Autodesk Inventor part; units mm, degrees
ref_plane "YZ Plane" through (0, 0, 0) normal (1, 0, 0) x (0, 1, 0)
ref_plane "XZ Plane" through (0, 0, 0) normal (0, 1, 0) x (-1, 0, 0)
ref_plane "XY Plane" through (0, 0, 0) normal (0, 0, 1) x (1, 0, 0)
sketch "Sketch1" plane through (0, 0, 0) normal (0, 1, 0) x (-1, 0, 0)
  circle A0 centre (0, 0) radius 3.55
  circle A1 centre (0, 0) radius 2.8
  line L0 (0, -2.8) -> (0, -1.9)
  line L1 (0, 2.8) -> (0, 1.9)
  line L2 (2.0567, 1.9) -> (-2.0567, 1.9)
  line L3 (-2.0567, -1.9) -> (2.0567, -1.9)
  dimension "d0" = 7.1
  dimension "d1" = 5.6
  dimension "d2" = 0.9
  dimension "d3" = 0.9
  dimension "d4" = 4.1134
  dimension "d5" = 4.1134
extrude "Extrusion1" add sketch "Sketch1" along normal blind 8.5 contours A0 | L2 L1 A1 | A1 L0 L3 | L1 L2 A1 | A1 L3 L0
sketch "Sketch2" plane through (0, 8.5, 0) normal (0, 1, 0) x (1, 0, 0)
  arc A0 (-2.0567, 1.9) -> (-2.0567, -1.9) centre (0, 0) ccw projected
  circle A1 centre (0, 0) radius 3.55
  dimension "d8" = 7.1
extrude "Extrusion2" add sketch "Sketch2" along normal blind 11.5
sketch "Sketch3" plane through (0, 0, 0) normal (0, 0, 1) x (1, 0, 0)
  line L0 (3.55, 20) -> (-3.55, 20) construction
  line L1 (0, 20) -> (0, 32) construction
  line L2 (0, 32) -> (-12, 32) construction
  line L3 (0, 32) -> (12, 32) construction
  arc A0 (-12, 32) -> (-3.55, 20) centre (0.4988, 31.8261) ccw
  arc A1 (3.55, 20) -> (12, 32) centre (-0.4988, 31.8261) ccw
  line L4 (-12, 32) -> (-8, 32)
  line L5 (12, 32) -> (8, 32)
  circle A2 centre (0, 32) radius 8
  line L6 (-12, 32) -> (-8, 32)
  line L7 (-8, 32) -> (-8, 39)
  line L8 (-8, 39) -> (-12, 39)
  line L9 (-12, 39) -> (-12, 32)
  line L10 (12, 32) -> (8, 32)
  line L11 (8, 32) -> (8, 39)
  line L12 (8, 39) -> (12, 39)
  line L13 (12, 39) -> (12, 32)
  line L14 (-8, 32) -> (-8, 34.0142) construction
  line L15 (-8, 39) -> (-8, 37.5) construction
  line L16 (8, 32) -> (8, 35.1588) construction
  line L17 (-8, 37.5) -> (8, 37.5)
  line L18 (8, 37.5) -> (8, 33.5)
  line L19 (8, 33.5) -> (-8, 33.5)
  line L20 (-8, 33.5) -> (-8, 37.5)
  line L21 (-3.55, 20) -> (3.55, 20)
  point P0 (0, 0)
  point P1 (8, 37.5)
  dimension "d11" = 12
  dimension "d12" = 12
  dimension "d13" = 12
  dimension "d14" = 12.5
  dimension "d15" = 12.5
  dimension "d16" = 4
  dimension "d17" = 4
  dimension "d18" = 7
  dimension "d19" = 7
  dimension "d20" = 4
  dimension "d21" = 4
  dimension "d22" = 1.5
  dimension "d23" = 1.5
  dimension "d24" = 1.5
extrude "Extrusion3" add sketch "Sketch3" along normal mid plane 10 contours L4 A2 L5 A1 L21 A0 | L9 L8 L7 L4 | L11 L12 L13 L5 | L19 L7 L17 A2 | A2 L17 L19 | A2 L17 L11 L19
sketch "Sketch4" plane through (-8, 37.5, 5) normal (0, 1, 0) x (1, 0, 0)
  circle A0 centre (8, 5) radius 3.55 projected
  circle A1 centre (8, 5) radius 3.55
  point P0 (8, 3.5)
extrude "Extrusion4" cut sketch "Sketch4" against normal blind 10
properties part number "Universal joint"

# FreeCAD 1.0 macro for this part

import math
import FreeCAD as App
import Part
import Sketcher
Q = App.Units.Quantity

doc = App.newDocument("Part")
body = doc.addObject("PartDesign::Body", "Body")

# Sketch on XZ plane
sketch1 = doc.addObject("Sketcher::SketchObject", "Sketch")
body.addObject(sketch1)
sketch1.AttachmentSupport = (doc.XZ_Plane, [""])
sketch1.MapMode = "FlatFace"
sketch1.addGeometry([
    Part.Circle(App.Vector(0, 0, 0), App.Vector(0, 0, 1), 3.5),  # 0
    Part.ArcOfCircle(Part.Circle(App.Vector(0, 0, 0), App.Vector(0, 0, 1), 2.8), math.radians(137), math.radians(223)),  # 1
    Part.LineSegment(App.Vector(-2.1, -1.9, 0), App.Vector(2.1, -1.9, 0)),  # 2
    Part.ArcOfCircle(Part.Circle(App.Vector(0, 0, 0), App.Vector(0, 0, 1), 2.8), math.radians(-43), math.radians(43)),  # 3
    Part.LineSegment(App.Vector(2.1, 1.9, 0), App.Vector(-2.1, 1.9, 0)),  # 4
], False)
sketch1.addConstraint([
    Sketcher.Constraint("Coincident", 1, 2, 2, 1),
    Sketcher.Constraint("Coincident", 2, 2, 3, 1),
    Sketcher.Constraint("Coincident", 3, 2, 4, 1),
    Sketcher.Constraint("Coincident", 4, 2, 1, 1),
    Sketcher.Constraint("Horizontal", 2),
    Sketcher.Constraint("Horizontal", 4),
    Sketcher.Constraint("Coincident", 0, 3, -1, 1),
    Sketcher.Constraint("Coincident", 1, 3, -1, 1),
    Sketcher.Constraint("Coincident", 3, 3, -1, 1),
    Sketcher.Constraint("Equal", 1, 3),
    Sketcher.Constraint("Vertical", 2, 2, 3, 2),
    Sketcher.Constraint("Diameter", 0, Q("7.1 mm")),
    Sketcher.Constraint("Radius", 1, Q("2.8 mm")),
    Sketcher.Constraint("DistanceX", 2, 1, 2, 2, Q("4.1134 mm")),
])
pad1 = doc.addObject("PartDesign::Pad", "Pad")
body.addObject(pad1)
pad1.Profile = sketch1
pad1.Length = 8.5
pad1.Reversed = True

# Sketch on XZ plane
sketch2 = doc.addObject("Sketcher::SketchObject", "Sketch001")
body.addObject(sketch2)
sketch2.AttachmentSupport = (doc.XZ_Plane, [""])
sketch2.MapMode = "FlatFace"
sketch2.AttachmentOffset = App.Placement(App.Vector(0, 0, -8.5), App.Rotation())
sketch2.addGeometry(Part.Circle(App.Vector(0, 0, 0), App.Vector(0, 0, 1), 3.5), False)
sketch2.addConstraint([
    Sketcher.Constraint("Coincident", 0, 3, -1, 1),
    Sketcher.Constraint("Diameter", 0, Q("7.1 mm")),
])
pad2 = doc.addObject("PartDesign::Pad", "Pad001")
body.addObject(pad2)
pad2.Profile = sketch2
pad2.Length = 11.5
pad2.Reversed = True

# Sketch on XY plane
sketch3 = doc.addObject("Sketcher::SketchObject", "Sketch002")
body.addObject(sketch3)
sketch3.AttachmentSupport = (doc.XY_Plane, [""])
sketch3.MapMode = "FlatFace"
sketch3.addGeometry([
    Part.ArcOfCircle(Part.Circle(App.Vector(-0.5, 31.8, 0), App.Vector(0, 0, 1), 12.5), math.radians(-71), math.radians(1)),  # 0
    Part.LineSegment(App.Vector(12, 32, 0), App.Vector(12, 39, 0)),  # 1
    Part.LineSegment(App.Vector(12, 39, 0), App.Vector(8, 39, 0)),  # 2
    Part.LineSegment(App.Vector(8, 39, 0), App.Vector(8, 37.5, 0)),  # 3
    Part.LineSegment(App.Vector(8, 37.5, 0), App.Vector(-8, 37.5, 0)),  # 4
    Part.LineSegment(App.Vector(-8, 37.5, 0), App.Vector(-8, 39, 0)),  # 5
    Part.LineSegment(App.Vector(-8, 39, 0), App.Vector(-12, 39, 0)),  # 6
    Part.LineSegment(App.Vector(-12, 39, 0), App.Vector(-12, 32, 0)),  # 7
    Part.ArcOfCircle(Part.Circle(App.Vector(0.5, 31.8, 0), App.Vector(0, 0, 1), 12.5), math.radians(179), math.radians(251)),  # 8
    Part.LineSegment(App.Vector(-3.5, 20, 0), App.Vector(3.5, 20, 0)),  # 9
    Part.ArcOfCircle(Part.Circle(App.Vector(0, 32, 0), App.Vector(0, 0, 1), 8), math.radians(180), math.radians(360)),  # 10
    Part.LineSegment(App.Vector(-8, 32, 0), App.Vector(-8, 33.5, 0)),  # 11
    Part.LineSegment(App.Vector(-8, 33.5, 0), App.Vector(8, 33.5, 0)),  # 12
    Part.LineSegment(App.Vector(8, 33.5, 0), App.Vector(8, 32, 0)),  # 13
], False)
sketch3.addConstraint([
    Sketcher.Constraint("Coincident", 0, 2, 1, 1),
    Sketcher.Constraint("Coincident", 1, 2, 2, 1),
    Sketcher.Constraint("Coincident", 2, 2, 3, 1),
    Sketcher.Constraint("Coincident", 3, 2, 4, 1),
    Sketcher.Constraint("Coincident", 4, 2, 5, 1),
    Sketcher.Constraint("Coincident", 5, 2, 6, 1),
    Sketcher.Constraint("Coincident", 6, 2, 7, 1),
    Sketcher.Constraint("Coincident", 7, 2, 8, 1),
    Sketcher.Constraint("Coincident", 8, 2, 9, 1),
    Sketcher.Constraint("Coincident", 9, 2, 0, 1),
    Sketcher.Constraint("Tangent", 10, 1, 11, 1),
    Sketcher.Constraint("Coincident", 11, 2, 12, 1),
    Sketcher.Constraint("Coincident", 12, 2, 13, 1),
    Sketcher.Constraint("Tangent", 13, 2, 10, 2),
    Sketcher.Constraint("Vertical", 1),
    Sketcher.Constraint("Horizontal", 2),
    Sketcher.Constraint("Vertical", 3),
    Sketcher.Constraint("Horizontal", 4),
    Sketcher.Constraint("Vertical", 5),
    Sketcher.Constraint("Horizontal", 6),
    Sketcher.Constraint("Vertical", 7),
    Sketcher.Constraint("Horizontal", 9),
    Sketcher.Constraint("Vertical", 11),
    Sketcher.Constraint("Horizontal", 12),
    Sketcher.Constraint("Vertical", 13),
    Sketcher.Constraint("Equal", 0, 8),
    Sketcher.Constraint("Symmetric", 0, 3, 8, 3, -2),
    Sketcher.Constraint("Symmetric", 2, 2, 5, 2, -2),
    Sketcher.Constraint("PointOnObject", 10, 3, -2),
    Sketcher.Constraint("Horizontal", 10, 3, 0, 2),
    Sketcher.Constraint("Horizontal", 0, 2, 7, 2),
    Sketcher.Constraint("Vertical", 5, 2, 10, 1),
    Sketcher.Constraint("Equal", 5, 11),
    Sketcher.Constraint("Radius", 0, Q("12.5 mm")),
    Sketcher.Constraint("DistanceX", 2, 2, 2, 1, Q("4 mm")),
    Sketcher.Constraint("DistanceY", 1, 1, 1, 2, Q("7 mm")),
    Sketcher.Constraint("DistanceY", 3, 2, 3, 1, Q("1.5 mm")),
    Sketcher.Constraint("DistanceX", -1, 1, 0, 2, Q("12 mm")),
    Sketcher.Constraint("DistanceY", 8, 2, 10, 3, Q("12 mm")),
    Sketcher.Constraint("DistanceX", 9, 1, 9, 2, Q("7.1 mm")),
    Sketcher.Constraint("DistanceY", -1, 1, 10, 3, Q("32 mm")),
])
pad3 = doc.addObject("PartDesign::Pad", "Pad002")
body.addObject(pad3)
pad3.Profile = sketch3
pad3.Length = 10
pad3.Midplane = True

# Sketch on XZ plane
sketch4 = doc.addObject("Sketcher::SketchObject", "Sketch003")
body.addObject(sketch4)
sketch4.AttachmentSupport = (doc.XZ_Plane, [""])
sketch4.MapMode = "FlatFace"
sketch4.AttachmentOffset = App.Placement(App.Vector(0, 0, -37.5), App.Rotation())
sketch4.addGeometry(Part.Circle(App.Vector(0, 0, 0), App.Vector(0, 0, 1), 3.5), False)
sketch4.addConstraint([
    Sketcher.Constraint("Coincident", 0, 3, -1, 1),
    Sketcher.Constraint("Diameter", 0, Q("7.1 mm")),
])
pocket1 = doc.addObject("PartDesign::Pocket", "Pocket")
body.addObject(pocket1)
pocket1.Profile = sketch4
pocket1.Length = 10
pocket1.Reversed = True

doc.recompute()
